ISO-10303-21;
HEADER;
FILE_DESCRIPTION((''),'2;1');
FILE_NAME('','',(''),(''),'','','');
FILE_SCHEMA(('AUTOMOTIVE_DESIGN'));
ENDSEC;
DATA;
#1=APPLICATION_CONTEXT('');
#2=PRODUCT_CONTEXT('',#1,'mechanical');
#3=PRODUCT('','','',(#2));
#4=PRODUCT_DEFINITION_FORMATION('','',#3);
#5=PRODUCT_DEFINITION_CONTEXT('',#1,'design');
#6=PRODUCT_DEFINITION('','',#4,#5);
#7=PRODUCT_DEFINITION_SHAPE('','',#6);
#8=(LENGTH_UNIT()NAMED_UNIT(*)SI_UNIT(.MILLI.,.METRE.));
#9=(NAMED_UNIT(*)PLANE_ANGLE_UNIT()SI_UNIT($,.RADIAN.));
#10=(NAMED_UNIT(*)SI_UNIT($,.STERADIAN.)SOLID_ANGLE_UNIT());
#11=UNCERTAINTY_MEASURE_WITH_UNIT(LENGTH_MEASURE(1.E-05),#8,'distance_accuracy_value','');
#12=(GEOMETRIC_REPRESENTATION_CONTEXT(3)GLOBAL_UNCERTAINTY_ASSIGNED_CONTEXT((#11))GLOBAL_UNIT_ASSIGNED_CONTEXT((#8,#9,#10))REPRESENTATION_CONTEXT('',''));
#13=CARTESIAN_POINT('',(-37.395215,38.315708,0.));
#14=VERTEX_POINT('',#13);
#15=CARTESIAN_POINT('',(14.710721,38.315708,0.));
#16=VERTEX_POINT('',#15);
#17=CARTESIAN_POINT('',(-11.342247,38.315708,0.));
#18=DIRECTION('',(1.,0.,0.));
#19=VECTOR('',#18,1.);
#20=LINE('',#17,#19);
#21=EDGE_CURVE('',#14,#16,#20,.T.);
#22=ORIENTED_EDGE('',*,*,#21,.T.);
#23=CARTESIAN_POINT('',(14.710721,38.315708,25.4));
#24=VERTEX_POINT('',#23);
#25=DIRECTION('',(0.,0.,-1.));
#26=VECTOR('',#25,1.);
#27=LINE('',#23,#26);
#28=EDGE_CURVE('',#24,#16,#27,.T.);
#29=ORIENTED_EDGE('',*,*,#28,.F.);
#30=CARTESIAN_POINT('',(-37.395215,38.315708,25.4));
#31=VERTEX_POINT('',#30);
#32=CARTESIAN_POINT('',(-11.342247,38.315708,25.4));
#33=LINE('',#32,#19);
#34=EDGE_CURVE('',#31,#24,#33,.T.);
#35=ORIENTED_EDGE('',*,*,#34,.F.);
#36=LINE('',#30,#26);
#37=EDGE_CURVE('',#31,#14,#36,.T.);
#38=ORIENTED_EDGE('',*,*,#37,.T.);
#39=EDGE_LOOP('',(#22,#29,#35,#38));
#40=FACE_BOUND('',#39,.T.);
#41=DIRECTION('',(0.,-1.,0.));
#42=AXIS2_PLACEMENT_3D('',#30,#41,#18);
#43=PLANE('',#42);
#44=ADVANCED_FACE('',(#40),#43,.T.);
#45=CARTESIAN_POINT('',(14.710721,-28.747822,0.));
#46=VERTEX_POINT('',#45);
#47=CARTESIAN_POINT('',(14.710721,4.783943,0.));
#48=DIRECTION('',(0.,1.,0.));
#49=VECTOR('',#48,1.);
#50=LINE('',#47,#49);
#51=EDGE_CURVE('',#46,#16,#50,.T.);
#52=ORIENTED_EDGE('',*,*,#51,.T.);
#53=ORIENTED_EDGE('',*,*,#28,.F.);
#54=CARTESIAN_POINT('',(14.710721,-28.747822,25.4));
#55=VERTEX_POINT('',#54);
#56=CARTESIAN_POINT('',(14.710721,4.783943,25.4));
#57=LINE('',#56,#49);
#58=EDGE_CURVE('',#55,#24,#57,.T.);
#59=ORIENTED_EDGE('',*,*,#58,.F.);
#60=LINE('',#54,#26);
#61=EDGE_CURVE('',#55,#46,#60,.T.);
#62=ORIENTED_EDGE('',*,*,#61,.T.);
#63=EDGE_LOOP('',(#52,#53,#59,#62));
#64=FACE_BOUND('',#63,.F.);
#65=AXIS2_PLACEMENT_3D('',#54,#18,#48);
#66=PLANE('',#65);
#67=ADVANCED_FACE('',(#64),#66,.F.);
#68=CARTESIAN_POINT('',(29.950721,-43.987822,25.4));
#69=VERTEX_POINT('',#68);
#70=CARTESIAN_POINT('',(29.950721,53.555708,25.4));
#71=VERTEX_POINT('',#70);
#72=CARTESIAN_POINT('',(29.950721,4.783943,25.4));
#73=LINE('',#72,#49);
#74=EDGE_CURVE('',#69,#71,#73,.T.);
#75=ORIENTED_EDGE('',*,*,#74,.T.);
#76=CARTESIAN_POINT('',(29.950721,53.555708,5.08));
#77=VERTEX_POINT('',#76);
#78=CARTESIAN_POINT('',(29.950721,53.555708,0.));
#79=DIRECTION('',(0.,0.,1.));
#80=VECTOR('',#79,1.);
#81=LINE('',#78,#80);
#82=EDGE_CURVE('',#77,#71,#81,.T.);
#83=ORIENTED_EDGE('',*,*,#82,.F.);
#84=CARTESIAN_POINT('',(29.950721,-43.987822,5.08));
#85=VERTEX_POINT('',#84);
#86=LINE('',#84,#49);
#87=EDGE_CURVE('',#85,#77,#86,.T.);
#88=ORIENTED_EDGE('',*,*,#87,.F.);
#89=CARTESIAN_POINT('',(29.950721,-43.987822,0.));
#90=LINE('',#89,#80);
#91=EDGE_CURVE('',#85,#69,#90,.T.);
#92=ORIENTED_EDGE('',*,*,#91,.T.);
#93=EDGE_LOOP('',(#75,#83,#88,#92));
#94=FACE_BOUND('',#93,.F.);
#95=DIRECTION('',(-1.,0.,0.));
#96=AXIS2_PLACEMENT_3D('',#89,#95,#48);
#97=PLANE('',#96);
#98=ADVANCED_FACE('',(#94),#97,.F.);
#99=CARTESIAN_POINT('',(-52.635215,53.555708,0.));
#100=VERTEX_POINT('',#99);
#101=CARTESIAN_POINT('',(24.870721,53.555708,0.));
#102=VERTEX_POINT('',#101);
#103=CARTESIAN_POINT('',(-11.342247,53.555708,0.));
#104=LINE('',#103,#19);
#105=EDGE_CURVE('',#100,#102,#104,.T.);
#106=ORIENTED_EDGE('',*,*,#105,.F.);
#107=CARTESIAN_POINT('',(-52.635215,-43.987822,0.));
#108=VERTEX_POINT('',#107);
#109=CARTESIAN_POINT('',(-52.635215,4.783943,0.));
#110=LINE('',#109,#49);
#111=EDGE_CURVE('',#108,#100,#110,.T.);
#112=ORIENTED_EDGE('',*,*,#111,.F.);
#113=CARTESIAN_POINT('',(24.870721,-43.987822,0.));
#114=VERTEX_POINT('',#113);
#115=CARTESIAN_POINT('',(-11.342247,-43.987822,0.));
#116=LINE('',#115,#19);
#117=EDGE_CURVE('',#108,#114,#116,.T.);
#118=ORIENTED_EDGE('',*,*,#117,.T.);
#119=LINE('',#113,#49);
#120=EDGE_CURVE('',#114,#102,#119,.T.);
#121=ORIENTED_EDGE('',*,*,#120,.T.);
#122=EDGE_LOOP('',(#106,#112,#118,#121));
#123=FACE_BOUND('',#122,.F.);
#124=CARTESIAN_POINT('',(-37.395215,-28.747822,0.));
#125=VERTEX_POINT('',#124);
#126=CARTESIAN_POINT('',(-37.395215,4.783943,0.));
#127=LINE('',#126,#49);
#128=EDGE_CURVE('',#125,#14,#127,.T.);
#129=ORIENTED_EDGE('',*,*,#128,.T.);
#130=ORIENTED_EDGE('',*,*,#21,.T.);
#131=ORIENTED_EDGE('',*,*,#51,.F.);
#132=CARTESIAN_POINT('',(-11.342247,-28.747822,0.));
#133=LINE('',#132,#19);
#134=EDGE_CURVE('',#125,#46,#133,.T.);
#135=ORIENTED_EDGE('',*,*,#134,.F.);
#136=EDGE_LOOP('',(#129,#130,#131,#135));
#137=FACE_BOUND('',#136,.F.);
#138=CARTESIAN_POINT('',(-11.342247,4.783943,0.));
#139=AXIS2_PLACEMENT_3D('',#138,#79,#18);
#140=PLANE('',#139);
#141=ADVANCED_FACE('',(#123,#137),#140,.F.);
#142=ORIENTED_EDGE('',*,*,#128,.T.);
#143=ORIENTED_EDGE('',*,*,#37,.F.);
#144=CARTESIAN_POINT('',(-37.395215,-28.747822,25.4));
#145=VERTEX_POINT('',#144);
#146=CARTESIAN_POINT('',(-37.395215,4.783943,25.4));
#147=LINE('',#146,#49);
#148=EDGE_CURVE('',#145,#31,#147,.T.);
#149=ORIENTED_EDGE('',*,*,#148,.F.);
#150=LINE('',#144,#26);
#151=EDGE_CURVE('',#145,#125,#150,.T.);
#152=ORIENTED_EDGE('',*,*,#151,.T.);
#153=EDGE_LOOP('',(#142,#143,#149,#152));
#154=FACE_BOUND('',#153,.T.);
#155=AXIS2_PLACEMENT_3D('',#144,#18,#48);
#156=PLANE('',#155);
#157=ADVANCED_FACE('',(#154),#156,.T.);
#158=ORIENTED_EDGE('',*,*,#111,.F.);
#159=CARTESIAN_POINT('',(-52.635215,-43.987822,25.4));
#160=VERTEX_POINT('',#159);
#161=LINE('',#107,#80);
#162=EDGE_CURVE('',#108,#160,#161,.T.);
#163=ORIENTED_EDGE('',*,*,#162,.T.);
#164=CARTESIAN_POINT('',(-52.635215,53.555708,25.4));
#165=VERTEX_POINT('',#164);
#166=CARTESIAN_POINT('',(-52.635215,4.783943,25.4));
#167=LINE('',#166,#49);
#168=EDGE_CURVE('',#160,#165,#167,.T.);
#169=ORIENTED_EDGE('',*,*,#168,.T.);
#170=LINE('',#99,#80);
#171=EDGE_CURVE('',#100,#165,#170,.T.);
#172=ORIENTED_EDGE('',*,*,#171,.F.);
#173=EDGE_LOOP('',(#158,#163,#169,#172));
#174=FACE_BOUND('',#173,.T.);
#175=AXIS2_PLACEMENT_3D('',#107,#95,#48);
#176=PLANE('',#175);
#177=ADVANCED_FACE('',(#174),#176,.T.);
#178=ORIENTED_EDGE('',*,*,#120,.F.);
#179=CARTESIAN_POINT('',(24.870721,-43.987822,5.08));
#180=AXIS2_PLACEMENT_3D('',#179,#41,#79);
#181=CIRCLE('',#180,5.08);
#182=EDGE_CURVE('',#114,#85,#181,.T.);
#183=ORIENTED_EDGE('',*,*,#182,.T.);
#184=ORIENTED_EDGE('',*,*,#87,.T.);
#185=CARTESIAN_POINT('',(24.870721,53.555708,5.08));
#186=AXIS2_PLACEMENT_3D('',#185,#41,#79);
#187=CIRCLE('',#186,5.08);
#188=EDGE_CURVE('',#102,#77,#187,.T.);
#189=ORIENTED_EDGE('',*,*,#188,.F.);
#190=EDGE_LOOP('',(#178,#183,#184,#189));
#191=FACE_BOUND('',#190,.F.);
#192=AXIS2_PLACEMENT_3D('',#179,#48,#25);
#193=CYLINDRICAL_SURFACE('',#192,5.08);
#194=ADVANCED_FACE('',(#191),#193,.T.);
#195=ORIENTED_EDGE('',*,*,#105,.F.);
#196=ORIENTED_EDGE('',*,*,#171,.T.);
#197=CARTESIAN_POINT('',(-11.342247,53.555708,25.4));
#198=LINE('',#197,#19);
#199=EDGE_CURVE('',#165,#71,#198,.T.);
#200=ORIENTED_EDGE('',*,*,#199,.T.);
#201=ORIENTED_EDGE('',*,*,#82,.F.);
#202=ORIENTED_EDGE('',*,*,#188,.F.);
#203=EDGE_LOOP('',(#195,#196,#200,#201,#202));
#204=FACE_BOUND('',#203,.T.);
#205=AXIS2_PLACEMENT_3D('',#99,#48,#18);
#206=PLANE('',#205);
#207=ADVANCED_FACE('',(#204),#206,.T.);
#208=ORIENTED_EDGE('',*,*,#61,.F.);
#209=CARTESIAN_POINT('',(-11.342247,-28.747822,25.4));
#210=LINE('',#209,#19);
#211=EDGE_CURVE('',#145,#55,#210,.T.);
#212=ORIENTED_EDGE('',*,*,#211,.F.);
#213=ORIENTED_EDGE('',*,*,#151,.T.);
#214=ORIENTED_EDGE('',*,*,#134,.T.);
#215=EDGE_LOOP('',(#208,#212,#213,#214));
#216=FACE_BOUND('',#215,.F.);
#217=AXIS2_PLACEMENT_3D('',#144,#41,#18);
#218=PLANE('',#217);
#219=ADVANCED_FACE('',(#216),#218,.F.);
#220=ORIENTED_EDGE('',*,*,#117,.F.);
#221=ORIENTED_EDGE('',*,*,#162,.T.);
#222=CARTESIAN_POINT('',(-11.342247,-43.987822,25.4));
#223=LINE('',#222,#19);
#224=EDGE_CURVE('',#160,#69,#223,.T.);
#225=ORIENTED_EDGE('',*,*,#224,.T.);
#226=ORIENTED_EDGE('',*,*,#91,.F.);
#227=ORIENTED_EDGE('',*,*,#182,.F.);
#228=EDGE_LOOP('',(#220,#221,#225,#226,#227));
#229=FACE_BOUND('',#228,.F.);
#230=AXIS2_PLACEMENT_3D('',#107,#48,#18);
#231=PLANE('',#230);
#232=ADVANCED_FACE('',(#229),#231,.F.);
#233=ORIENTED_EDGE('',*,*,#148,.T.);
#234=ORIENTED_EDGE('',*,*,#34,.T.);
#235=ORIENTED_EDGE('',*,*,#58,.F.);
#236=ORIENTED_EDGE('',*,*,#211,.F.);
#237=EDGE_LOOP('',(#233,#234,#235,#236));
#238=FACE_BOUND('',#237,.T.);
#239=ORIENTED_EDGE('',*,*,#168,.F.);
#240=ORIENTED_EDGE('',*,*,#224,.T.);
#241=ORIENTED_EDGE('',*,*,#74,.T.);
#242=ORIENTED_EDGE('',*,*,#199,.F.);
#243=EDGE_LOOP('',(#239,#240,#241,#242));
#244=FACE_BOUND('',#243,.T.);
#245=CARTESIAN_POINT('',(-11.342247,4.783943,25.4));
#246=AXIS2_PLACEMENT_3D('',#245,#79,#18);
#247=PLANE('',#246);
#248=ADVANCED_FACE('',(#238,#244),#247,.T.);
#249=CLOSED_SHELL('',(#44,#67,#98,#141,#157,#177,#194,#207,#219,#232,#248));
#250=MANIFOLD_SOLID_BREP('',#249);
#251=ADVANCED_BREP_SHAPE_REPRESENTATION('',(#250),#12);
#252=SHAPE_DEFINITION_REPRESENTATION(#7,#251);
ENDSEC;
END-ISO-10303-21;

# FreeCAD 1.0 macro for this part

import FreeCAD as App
import Part
import Sketcher
Q = App.Units.Quantity


def edges_at(feature, points):
    """Names of the edges that pass closest to the given points."""
    edges = feature.Shape.Edges
    near = lambda p: min(range(len(edges)), key=lambda i: edges[i].distToShape(Part.Vertex(*p))[0])
    return sorted({f"Edge{near(p) + 1}" for p in points})

doc = App.newDocument("Part")
params = doc.addObject("Spreadsheet::Sheet", "Params")
for row, (alias, value) in enumerate([
    ("pad1_length", "1 in"),
    ("pocket1_length", "1 in"),
    ("fillet_radius", "0.2 in"),
], start=1):
    params.set(f"A{row}", alias)
    params.set(f"B{row}", "=" + value)
    params.setAlias(f"B{row}", alias)

body = doc.addObject("PartDesign::Body", "Body")

sketch1 = body.newObject("Sketcher::SketchObject", "Sketch")
sketch1.AttachmentSupport = (doc.getObject("XY_Plane"), [""])
sketch1.MapMode = "FlatFace"
sketch1.addGeometry(Part.LineSegment(App.Vector(-53, 54, 0), App.Vector(-53, -44, 0)), False)
sketch1.addGeometry(Part.LineSegment(App.Vector(-53, -44, 0), App.Vector(30, -44, 0)), False)
sketch1.addGeometry(Part.LineSegment(App.Vector(30, -44, 0), App.Vector(30, 54, 0)), False)
sketch1.addGeometry(Part.LineSegment(App.Vector(30, 54, 0), App.Vector(-53, 54, 0)), False)
sketch1.addConstraint(Sketcher.Constraint("Coincident", 0, 2, 1, 1))
sketch1.addConstraint(Sketcher.Constraint("Coincident", 1, 2, 2, 1))
sketch1.addConstraint(Sketcher.Constraint("Coincident", 2, 2, 3, 1))
sketch1.addConstraint(Sketcher.Constraint("Coincident", 3, 2, 0, 1))
sketch1.addConstraint(Sketcher.Constraint("Vertical", 0))
sketch1.addConstraint(Sketcher.Constraint("Horizontal", 1))
sketch1.addConstraint(Sketcher.Constraint("Vertical", 2))
sketch1.addConstraint(Sketcher.Constraint("Horizontal", 3))
sketch1.addConstraint(Sketcher.Constraint("DistanceY", 0, 2, 0, 1, Q("97.54353 mm")))
sketch1.addConstraint(Sketcher.Constraint("DistanceX", 1, 1, 1, 2, Q("82.585936 mm")))
sketch1.addConstraint(Sketcher.Constraint("DistanceX", -1, 1, 1, 2, Q("29.950721 mm")))
sketch1.addConstraint(Sketcher.Constraint("DistanceY", -1, 1, 2, 2, Q("53.555708 mm")))
pad1 = body.newObject("PartDesign::Pad", "Pad")
pad1.Profile = sketch1
pad1.setExpression("Length", "Params.pad1_length")

sketch2 = body.newObject("Sketcher::SketchObject", "Sketch001")
sketch2.AttachmentSupport = (doc.getObject("XY_Plane"), [""])
sketch2.MapMode = "FlatFace"
sketch2.AttachmentOffset = App.Placement(App.Vector(0, 0, 1 * 25.4), App.Rotation())
sketch2.addGeometry(Part.LineSegment(App.Vector(-37, 38, 0), App.Vector(-37, -29, 0)), False)
sketch2.addGeometry(Part.LineSegment(App.Vector(-37, -29, 0), App.Vector(15, -29, 0)), False)
sketch2.addGeometry(Part.LineSegment(App.Vector(15, -29, 0), App.Vector(15, 38, 0)), False)
sketch2.addGeometry(Part.LineSegment(App.Vector(15, 38, 0), App.Vector(-37, 38, 0)), False)
sketch2.addConstraint(Sketcher.Constraint("Coincident", 0, 2, 1, 1))
sketch2.addConstraint(Sketcher.Constraint("Coincident", 1, 2, 2, 1))
sketch2.addConstraint(Sketcher.Constraint("Coincident", 2, 2, 3, 1))
sketch2.addConstraint(Sketcher.Constraint("Coincident", 3, 2, 0, 1))
sketch2.addConstraint(Sketcher.Constraint("Vertical", 0))
sketch2.addConstraint(Sketcher.Constraint("Horizontal", 1))
sketch2.addConstraint(Sketcher.Constraint("Vertical", 2))
sketch2.addConstraint(Sketcher.Constraint("Horizontal", 3))
sketch2.addConstraint(Sketcher.Constraint("DistanceY", 0, 2, 0, 1, Q("67.06353 mm")))
sketch2.addConstraint(Sketcher.Constraint("DistanceX", 1, 1, 1, 2, Q("52.105936 mm")))
sketch2.addConstraint(Sketcher.Constraint("DistanceY", 0, 2, -1, 1, Q("28.747822 mm")))
sketch2.addConstraint(Sketcher.Constraint("DistanceX", -1, 1, 1, 2, Q("14.710721 mm")))
pocket1 = body.newObject("PartDesign::Pocket", "Pocket")
pocket1.Profile = sketch2
pocket1.setExpression("Length", "Params.pocket1_length")
doc.recompute()

fillet = body.newObject("PartDesign::Fillet", "Fillet")
fillet.Base = (pocket1, edges_at(pocket1, [(29.951, 4.784, 0)]))
fillet.setExpression("Radius", "Params.fillet_radius")

doc.recompute()
